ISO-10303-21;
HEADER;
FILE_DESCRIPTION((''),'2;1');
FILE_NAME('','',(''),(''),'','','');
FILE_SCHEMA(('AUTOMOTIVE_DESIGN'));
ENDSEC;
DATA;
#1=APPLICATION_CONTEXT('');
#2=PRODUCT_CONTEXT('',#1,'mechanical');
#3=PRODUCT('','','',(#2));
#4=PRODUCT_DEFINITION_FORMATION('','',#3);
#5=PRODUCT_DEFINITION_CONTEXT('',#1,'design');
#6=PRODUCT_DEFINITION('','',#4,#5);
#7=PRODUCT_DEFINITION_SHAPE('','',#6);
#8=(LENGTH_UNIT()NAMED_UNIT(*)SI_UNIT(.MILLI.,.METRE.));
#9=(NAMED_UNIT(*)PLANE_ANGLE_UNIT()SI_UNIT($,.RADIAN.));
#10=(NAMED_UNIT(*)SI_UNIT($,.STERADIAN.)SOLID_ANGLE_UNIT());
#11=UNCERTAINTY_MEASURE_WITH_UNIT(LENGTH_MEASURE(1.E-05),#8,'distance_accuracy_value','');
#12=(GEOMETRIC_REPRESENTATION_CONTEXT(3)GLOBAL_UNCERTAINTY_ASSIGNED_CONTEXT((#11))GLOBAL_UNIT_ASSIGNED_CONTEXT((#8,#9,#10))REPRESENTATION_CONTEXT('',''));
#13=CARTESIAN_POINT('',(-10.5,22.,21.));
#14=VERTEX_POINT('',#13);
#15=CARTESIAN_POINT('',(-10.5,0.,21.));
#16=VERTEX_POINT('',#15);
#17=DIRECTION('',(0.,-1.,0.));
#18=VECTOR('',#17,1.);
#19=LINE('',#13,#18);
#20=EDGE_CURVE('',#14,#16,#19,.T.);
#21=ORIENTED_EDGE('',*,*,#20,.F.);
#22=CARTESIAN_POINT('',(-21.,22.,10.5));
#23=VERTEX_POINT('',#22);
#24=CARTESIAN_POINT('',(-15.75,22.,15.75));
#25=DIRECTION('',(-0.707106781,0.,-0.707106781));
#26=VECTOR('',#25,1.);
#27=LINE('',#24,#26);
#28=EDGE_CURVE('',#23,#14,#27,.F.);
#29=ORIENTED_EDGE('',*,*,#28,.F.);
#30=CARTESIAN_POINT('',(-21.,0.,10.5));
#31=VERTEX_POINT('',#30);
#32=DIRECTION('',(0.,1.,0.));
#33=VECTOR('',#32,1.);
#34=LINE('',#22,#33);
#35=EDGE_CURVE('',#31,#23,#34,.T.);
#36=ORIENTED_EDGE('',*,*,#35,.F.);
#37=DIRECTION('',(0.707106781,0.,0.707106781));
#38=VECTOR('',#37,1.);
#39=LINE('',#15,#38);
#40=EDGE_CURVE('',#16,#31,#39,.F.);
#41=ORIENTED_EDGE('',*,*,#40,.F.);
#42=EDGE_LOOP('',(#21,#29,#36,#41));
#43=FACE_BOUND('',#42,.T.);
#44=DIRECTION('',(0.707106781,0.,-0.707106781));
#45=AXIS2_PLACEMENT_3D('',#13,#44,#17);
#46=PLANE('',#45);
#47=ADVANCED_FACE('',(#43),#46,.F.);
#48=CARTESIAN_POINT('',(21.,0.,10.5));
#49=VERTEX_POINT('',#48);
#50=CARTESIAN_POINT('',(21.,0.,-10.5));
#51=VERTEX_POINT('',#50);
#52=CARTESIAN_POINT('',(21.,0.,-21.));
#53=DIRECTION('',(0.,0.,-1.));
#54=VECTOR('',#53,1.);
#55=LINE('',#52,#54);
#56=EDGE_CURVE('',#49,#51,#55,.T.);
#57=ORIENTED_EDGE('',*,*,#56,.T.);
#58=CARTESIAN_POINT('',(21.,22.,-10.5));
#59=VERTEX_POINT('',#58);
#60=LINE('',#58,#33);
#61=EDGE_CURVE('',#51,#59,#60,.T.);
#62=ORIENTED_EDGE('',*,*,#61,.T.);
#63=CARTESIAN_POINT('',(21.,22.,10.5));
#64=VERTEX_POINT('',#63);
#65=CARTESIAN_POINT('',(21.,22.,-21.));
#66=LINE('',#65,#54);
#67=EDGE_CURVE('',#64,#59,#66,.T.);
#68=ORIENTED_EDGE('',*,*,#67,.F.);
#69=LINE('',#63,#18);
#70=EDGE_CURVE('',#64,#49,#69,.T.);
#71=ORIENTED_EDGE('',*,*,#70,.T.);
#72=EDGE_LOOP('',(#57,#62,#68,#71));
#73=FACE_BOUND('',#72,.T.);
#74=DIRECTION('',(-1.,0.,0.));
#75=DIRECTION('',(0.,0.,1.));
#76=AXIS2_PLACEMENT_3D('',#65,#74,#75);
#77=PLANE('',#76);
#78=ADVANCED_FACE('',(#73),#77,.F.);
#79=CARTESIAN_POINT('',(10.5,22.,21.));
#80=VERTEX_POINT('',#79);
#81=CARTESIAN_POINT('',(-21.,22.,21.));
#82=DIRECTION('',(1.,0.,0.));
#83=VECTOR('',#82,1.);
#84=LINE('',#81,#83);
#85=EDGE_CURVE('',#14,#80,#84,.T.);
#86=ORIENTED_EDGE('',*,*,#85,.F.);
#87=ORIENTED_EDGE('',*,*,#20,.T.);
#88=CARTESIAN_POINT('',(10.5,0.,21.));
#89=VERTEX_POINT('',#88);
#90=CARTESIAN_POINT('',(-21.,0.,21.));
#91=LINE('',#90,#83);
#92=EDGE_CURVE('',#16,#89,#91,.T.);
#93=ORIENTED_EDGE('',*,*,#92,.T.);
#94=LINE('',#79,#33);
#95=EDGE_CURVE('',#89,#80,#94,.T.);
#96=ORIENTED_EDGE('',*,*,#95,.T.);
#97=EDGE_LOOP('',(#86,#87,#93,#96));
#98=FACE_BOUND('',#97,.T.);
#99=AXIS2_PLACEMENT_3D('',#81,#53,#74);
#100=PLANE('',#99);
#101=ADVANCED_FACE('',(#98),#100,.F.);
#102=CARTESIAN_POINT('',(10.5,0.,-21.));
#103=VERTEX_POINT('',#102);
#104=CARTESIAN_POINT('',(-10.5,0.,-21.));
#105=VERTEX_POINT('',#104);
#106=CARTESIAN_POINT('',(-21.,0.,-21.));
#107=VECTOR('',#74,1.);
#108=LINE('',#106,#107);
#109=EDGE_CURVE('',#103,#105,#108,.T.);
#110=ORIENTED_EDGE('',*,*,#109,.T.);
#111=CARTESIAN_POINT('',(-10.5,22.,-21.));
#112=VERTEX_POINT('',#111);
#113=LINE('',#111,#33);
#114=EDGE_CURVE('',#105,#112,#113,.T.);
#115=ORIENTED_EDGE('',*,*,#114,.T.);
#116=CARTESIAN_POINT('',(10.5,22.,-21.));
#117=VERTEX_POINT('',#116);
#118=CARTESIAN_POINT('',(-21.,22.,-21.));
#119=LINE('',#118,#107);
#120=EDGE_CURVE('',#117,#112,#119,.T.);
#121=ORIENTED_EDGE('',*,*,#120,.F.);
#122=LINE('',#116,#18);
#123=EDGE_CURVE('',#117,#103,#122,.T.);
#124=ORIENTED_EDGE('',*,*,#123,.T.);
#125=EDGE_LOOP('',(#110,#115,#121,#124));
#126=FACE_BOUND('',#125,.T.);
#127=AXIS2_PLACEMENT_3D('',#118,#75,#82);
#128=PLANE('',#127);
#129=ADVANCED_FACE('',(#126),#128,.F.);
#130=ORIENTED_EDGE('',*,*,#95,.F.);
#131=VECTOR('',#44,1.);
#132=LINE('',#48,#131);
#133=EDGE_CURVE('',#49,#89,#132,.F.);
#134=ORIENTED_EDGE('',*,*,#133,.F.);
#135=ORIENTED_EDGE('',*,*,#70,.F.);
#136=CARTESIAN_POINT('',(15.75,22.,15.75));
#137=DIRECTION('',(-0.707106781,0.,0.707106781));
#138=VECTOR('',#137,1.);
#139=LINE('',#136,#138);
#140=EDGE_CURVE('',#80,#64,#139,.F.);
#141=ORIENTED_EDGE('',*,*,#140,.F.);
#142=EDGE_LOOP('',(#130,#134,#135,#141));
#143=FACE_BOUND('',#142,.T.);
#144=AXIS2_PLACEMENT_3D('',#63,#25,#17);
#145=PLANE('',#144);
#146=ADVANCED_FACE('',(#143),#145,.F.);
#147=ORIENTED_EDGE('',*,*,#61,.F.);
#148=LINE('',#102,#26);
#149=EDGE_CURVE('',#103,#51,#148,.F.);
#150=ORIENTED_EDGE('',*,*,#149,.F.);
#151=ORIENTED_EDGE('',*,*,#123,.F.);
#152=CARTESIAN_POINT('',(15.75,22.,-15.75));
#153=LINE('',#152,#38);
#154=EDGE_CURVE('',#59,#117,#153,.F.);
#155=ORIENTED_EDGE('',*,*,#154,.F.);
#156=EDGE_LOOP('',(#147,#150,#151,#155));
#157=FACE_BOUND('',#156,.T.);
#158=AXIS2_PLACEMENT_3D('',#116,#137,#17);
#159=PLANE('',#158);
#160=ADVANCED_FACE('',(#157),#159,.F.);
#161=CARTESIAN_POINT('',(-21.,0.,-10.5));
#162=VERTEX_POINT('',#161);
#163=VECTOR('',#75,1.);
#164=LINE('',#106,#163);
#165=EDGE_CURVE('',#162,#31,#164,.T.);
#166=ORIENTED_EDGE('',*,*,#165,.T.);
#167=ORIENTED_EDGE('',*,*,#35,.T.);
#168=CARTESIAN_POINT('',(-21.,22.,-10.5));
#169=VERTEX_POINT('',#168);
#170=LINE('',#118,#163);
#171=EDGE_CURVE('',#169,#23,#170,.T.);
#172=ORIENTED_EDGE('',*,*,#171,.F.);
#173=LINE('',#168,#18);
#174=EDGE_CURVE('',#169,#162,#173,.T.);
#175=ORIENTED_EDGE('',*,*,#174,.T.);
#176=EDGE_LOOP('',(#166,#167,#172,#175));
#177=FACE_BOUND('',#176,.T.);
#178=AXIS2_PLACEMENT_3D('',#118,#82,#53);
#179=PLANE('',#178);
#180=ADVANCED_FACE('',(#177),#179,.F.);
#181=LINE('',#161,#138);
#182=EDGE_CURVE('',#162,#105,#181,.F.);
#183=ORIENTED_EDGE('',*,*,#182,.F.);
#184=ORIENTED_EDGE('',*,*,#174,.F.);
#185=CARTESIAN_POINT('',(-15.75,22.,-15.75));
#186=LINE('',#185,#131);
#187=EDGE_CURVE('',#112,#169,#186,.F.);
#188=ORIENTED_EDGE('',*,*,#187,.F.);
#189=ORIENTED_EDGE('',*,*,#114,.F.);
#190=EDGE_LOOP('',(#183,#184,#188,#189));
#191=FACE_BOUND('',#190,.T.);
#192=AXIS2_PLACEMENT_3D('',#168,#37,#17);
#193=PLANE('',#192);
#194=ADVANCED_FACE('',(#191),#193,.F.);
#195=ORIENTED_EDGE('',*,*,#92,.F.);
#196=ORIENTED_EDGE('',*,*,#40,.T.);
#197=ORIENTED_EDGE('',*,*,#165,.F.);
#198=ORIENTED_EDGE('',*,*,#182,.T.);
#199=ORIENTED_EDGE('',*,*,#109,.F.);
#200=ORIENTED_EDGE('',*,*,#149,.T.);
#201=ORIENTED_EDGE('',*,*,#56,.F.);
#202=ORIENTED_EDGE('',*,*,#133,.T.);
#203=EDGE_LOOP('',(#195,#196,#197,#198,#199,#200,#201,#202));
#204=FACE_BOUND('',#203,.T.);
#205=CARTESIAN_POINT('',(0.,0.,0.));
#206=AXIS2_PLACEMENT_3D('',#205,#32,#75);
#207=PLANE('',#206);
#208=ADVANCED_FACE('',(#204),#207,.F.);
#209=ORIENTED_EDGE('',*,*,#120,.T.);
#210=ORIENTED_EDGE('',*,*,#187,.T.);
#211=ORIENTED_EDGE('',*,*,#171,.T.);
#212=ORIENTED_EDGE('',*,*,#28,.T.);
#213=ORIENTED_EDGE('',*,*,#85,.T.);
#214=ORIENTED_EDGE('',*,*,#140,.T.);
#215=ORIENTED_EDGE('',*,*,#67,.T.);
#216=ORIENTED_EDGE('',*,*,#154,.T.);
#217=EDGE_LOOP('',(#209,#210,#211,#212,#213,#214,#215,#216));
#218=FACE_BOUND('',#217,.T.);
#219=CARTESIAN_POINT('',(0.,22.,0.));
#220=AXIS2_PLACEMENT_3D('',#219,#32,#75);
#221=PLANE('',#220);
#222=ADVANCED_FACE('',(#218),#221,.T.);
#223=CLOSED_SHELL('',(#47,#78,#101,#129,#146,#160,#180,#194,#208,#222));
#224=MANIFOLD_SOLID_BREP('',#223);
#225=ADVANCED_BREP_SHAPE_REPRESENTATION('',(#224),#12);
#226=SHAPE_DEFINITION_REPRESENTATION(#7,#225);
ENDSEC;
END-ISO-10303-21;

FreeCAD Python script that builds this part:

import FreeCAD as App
import Part
import Sketcher
from FreeCAD import Vector
Q = App.Units.Quantity


def edges_at(feature, points):
    """Names of the edges that pass closest to the given points."""
    edges = feature.Shape.Edges
    near = lambda p: min(range(len(edges)), key=lambda i: edges[i].distToShape(Part.Vertex(*p))[0])
    return sorted({f"Edge{near(p) + 1}" for p in points})


def add_polygon(sketch, points):
    """Adds a closed chain of lines whose ends are joined by coincident constraints."""
    first, n = sketch.GeometryCount, len(points)
    for a, b in zip(points, points[1:] + points[:1]):
        sketch.addGeometry(Part.LineSegment(App.Vector(*a, 0), App.Vector(*b, 0)), False)
    for i in range(n):
        sketch.addConstraint(Sketcher.Constraint("Coincident", first + i, 2, first + (i + 1) % n, 1))

doc = App.newDocument("Part")
body = doc.addObject("PartDesign::Body", "Body")

sketch1 = doc.addObject("Sketcher::SketchObject", "Sketch")
body.addObject(sketch1)
sketch1.AttachmentSupport = (doc.XZ_Plane, [""])
sketch1.MapMode = "FlatFace"
add_polygon(sketch1, [(-21, -21), (-21, 21), (21, 21), (21, -21)])
sketch1.addConstraint(Sketcher.Constraint("Vertical", 0))
sketch1.addConstraint(Sketcher.Constraint("Horizontal", 1))
sketch1.addConstraint(Sketcher.Constraint("Vertical", 2))
sketch1.addConstraint(Sketcher.Constraint("Horizontal", 3))
sketch1.addConstraint(Sketcher.Constraint("Symmetric", 0, 2, 2, 2, -1, 1))
sketch1.addConstraint(Sketcher.Constraint("Equal", 3, 0))
sketch1.addConstraint(Sketcher.Constraint("DistanceX", 1, 1, 1, 2, Q("42 mm")))
pad1 = doc.addObject("PartDesign::Pad", "Pad")
body.addObject(pad1)
pad1.Profile = sketch1
pad1.Length = 22
pad1.Reversed = True
doc.recompute()

chamfer = doc.addObject("PartDesign::Chamfer", "Chamfer")
body.addObject(chamfer)
chamfer.Base = (pad1, edges_at(pad1, [
    (21, 11, 21),
    (-21, 11, 21),
    (-21, 11, -21),
    (21, 11, -21),
]))
chamfer.Size = 10.5

doc.recompute()
